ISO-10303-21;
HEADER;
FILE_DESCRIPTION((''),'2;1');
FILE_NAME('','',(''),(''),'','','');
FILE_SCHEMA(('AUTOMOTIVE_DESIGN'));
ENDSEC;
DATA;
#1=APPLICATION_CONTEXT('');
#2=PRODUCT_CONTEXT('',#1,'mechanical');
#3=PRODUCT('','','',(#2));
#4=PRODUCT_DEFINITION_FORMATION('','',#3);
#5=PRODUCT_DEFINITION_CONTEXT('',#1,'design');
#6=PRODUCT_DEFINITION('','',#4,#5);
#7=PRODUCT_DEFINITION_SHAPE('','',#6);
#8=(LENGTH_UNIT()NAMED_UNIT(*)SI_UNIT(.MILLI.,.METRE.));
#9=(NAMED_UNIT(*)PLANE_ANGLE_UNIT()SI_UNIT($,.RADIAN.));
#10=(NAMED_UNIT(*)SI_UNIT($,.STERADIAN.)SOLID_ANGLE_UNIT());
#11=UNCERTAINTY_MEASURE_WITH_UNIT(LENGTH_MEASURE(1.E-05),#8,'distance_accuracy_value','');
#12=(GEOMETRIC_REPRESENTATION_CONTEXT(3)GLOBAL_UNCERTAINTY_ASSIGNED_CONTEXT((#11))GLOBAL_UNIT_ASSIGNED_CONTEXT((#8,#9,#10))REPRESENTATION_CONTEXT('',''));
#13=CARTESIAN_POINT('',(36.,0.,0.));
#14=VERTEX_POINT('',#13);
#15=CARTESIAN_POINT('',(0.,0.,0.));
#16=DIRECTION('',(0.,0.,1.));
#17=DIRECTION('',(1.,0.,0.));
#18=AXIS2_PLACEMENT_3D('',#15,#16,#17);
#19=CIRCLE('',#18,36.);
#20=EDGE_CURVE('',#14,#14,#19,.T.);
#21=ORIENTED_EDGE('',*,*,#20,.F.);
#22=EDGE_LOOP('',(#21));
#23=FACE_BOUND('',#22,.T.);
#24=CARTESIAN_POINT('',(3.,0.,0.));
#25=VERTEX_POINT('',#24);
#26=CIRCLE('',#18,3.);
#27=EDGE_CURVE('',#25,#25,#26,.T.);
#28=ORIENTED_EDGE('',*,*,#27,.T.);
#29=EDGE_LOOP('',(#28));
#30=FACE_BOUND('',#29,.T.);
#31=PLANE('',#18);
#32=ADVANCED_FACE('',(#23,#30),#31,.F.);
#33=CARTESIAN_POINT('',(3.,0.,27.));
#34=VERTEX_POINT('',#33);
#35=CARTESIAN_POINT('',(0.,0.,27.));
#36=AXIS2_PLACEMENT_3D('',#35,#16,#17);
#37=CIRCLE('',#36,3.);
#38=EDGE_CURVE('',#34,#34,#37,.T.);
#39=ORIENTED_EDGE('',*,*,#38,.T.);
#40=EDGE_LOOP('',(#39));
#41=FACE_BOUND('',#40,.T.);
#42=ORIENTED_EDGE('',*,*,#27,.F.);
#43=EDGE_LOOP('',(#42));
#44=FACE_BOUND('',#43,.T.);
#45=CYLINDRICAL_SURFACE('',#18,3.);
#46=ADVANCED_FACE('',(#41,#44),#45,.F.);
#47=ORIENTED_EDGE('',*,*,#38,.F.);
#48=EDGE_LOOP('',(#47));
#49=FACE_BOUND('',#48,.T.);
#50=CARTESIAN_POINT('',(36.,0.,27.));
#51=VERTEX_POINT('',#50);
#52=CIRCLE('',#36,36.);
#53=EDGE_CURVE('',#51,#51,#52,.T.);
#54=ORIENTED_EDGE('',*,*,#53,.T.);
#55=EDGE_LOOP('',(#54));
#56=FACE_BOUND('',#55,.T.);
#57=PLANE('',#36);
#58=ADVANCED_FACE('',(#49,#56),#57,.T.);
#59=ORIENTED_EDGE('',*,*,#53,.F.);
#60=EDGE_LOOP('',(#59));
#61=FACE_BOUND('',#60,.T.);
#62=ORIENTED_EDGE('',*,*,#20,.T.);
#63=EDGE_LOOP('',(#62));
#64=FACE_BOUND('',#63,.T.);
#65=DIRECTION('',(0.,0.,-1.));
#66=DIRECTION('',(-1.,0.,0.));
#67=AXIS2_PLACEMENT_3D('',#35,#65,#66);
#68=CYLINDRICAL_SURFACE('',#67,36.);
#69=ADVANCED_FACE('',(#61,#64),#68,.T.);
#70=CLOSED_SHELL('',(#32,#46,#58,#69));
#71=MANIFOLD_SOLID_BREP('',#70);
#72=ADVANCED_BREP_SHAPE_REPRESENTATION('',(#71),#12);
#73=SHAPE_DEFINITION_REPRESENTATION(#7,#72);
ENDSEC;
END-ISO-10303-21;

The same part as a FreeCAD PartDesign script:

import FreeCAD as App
import Part
import Sketcher
from FreeCAD import Vector
Q = App.Units.Quantity

doc = App.newDocument("Part")
body = doc.addObject("PartDesign::Body", "Body")

# Sketch on XY plane
sketch1 = doc.addObject("Sketcher::SketchObject", "Sketch")
body.addObject(sketch1)
sketch1.AttachmentSupport = (doc.XY_Plane, [""])
sketch1.MapMode = "FlatFace"
sketch1.addGeometry(Part.Circle(Vector(0, 0, 0), Vector(0, 0, 1), 36), False)
sketch1.addConstraint([
    Sketcher.Constraint("Coincident", 0, 3, -1, 1),
    Sketcher.Constraint("Diameter", 0, Q("72 mm")),
])
pad1 = doc.addObject("PartDesign::Pad", "Pad")
body.addObject(pad1)
pad1.Profile = sketch1
pad1.Length = 27

# Sketch on XY plane
sketch2 = doc.addObject("Sketcher::SketchObject", "Sketch001")
body.addObject(sketch2)
sketch2.AttachmentSupport = (doc.XY_Plane, [""])
sketch2.MapMode = "FlatFace"
sketch2.AttachmentOffset = App.Placement(Vector(0, 0, 27), App.Rotation())
sketch2.addGeometry(Part.Circle(Vector(0, 0, 0), Vector(0, 0, 1), 3), False)
sketch2.addConstraint([
    Sketcher.Constraint("Coincident", 0, 3, -1, 1),
    Sketcher.Constraint("Diameter", 0, Q("6 mm")),
])
pocket1 = doc.addObject("PartDesign::Pocket", "Pocket")
body.addObject(pocket1)
pocket1.Profile = sketch2
pocket1.Length = 27

doc.recompute()
